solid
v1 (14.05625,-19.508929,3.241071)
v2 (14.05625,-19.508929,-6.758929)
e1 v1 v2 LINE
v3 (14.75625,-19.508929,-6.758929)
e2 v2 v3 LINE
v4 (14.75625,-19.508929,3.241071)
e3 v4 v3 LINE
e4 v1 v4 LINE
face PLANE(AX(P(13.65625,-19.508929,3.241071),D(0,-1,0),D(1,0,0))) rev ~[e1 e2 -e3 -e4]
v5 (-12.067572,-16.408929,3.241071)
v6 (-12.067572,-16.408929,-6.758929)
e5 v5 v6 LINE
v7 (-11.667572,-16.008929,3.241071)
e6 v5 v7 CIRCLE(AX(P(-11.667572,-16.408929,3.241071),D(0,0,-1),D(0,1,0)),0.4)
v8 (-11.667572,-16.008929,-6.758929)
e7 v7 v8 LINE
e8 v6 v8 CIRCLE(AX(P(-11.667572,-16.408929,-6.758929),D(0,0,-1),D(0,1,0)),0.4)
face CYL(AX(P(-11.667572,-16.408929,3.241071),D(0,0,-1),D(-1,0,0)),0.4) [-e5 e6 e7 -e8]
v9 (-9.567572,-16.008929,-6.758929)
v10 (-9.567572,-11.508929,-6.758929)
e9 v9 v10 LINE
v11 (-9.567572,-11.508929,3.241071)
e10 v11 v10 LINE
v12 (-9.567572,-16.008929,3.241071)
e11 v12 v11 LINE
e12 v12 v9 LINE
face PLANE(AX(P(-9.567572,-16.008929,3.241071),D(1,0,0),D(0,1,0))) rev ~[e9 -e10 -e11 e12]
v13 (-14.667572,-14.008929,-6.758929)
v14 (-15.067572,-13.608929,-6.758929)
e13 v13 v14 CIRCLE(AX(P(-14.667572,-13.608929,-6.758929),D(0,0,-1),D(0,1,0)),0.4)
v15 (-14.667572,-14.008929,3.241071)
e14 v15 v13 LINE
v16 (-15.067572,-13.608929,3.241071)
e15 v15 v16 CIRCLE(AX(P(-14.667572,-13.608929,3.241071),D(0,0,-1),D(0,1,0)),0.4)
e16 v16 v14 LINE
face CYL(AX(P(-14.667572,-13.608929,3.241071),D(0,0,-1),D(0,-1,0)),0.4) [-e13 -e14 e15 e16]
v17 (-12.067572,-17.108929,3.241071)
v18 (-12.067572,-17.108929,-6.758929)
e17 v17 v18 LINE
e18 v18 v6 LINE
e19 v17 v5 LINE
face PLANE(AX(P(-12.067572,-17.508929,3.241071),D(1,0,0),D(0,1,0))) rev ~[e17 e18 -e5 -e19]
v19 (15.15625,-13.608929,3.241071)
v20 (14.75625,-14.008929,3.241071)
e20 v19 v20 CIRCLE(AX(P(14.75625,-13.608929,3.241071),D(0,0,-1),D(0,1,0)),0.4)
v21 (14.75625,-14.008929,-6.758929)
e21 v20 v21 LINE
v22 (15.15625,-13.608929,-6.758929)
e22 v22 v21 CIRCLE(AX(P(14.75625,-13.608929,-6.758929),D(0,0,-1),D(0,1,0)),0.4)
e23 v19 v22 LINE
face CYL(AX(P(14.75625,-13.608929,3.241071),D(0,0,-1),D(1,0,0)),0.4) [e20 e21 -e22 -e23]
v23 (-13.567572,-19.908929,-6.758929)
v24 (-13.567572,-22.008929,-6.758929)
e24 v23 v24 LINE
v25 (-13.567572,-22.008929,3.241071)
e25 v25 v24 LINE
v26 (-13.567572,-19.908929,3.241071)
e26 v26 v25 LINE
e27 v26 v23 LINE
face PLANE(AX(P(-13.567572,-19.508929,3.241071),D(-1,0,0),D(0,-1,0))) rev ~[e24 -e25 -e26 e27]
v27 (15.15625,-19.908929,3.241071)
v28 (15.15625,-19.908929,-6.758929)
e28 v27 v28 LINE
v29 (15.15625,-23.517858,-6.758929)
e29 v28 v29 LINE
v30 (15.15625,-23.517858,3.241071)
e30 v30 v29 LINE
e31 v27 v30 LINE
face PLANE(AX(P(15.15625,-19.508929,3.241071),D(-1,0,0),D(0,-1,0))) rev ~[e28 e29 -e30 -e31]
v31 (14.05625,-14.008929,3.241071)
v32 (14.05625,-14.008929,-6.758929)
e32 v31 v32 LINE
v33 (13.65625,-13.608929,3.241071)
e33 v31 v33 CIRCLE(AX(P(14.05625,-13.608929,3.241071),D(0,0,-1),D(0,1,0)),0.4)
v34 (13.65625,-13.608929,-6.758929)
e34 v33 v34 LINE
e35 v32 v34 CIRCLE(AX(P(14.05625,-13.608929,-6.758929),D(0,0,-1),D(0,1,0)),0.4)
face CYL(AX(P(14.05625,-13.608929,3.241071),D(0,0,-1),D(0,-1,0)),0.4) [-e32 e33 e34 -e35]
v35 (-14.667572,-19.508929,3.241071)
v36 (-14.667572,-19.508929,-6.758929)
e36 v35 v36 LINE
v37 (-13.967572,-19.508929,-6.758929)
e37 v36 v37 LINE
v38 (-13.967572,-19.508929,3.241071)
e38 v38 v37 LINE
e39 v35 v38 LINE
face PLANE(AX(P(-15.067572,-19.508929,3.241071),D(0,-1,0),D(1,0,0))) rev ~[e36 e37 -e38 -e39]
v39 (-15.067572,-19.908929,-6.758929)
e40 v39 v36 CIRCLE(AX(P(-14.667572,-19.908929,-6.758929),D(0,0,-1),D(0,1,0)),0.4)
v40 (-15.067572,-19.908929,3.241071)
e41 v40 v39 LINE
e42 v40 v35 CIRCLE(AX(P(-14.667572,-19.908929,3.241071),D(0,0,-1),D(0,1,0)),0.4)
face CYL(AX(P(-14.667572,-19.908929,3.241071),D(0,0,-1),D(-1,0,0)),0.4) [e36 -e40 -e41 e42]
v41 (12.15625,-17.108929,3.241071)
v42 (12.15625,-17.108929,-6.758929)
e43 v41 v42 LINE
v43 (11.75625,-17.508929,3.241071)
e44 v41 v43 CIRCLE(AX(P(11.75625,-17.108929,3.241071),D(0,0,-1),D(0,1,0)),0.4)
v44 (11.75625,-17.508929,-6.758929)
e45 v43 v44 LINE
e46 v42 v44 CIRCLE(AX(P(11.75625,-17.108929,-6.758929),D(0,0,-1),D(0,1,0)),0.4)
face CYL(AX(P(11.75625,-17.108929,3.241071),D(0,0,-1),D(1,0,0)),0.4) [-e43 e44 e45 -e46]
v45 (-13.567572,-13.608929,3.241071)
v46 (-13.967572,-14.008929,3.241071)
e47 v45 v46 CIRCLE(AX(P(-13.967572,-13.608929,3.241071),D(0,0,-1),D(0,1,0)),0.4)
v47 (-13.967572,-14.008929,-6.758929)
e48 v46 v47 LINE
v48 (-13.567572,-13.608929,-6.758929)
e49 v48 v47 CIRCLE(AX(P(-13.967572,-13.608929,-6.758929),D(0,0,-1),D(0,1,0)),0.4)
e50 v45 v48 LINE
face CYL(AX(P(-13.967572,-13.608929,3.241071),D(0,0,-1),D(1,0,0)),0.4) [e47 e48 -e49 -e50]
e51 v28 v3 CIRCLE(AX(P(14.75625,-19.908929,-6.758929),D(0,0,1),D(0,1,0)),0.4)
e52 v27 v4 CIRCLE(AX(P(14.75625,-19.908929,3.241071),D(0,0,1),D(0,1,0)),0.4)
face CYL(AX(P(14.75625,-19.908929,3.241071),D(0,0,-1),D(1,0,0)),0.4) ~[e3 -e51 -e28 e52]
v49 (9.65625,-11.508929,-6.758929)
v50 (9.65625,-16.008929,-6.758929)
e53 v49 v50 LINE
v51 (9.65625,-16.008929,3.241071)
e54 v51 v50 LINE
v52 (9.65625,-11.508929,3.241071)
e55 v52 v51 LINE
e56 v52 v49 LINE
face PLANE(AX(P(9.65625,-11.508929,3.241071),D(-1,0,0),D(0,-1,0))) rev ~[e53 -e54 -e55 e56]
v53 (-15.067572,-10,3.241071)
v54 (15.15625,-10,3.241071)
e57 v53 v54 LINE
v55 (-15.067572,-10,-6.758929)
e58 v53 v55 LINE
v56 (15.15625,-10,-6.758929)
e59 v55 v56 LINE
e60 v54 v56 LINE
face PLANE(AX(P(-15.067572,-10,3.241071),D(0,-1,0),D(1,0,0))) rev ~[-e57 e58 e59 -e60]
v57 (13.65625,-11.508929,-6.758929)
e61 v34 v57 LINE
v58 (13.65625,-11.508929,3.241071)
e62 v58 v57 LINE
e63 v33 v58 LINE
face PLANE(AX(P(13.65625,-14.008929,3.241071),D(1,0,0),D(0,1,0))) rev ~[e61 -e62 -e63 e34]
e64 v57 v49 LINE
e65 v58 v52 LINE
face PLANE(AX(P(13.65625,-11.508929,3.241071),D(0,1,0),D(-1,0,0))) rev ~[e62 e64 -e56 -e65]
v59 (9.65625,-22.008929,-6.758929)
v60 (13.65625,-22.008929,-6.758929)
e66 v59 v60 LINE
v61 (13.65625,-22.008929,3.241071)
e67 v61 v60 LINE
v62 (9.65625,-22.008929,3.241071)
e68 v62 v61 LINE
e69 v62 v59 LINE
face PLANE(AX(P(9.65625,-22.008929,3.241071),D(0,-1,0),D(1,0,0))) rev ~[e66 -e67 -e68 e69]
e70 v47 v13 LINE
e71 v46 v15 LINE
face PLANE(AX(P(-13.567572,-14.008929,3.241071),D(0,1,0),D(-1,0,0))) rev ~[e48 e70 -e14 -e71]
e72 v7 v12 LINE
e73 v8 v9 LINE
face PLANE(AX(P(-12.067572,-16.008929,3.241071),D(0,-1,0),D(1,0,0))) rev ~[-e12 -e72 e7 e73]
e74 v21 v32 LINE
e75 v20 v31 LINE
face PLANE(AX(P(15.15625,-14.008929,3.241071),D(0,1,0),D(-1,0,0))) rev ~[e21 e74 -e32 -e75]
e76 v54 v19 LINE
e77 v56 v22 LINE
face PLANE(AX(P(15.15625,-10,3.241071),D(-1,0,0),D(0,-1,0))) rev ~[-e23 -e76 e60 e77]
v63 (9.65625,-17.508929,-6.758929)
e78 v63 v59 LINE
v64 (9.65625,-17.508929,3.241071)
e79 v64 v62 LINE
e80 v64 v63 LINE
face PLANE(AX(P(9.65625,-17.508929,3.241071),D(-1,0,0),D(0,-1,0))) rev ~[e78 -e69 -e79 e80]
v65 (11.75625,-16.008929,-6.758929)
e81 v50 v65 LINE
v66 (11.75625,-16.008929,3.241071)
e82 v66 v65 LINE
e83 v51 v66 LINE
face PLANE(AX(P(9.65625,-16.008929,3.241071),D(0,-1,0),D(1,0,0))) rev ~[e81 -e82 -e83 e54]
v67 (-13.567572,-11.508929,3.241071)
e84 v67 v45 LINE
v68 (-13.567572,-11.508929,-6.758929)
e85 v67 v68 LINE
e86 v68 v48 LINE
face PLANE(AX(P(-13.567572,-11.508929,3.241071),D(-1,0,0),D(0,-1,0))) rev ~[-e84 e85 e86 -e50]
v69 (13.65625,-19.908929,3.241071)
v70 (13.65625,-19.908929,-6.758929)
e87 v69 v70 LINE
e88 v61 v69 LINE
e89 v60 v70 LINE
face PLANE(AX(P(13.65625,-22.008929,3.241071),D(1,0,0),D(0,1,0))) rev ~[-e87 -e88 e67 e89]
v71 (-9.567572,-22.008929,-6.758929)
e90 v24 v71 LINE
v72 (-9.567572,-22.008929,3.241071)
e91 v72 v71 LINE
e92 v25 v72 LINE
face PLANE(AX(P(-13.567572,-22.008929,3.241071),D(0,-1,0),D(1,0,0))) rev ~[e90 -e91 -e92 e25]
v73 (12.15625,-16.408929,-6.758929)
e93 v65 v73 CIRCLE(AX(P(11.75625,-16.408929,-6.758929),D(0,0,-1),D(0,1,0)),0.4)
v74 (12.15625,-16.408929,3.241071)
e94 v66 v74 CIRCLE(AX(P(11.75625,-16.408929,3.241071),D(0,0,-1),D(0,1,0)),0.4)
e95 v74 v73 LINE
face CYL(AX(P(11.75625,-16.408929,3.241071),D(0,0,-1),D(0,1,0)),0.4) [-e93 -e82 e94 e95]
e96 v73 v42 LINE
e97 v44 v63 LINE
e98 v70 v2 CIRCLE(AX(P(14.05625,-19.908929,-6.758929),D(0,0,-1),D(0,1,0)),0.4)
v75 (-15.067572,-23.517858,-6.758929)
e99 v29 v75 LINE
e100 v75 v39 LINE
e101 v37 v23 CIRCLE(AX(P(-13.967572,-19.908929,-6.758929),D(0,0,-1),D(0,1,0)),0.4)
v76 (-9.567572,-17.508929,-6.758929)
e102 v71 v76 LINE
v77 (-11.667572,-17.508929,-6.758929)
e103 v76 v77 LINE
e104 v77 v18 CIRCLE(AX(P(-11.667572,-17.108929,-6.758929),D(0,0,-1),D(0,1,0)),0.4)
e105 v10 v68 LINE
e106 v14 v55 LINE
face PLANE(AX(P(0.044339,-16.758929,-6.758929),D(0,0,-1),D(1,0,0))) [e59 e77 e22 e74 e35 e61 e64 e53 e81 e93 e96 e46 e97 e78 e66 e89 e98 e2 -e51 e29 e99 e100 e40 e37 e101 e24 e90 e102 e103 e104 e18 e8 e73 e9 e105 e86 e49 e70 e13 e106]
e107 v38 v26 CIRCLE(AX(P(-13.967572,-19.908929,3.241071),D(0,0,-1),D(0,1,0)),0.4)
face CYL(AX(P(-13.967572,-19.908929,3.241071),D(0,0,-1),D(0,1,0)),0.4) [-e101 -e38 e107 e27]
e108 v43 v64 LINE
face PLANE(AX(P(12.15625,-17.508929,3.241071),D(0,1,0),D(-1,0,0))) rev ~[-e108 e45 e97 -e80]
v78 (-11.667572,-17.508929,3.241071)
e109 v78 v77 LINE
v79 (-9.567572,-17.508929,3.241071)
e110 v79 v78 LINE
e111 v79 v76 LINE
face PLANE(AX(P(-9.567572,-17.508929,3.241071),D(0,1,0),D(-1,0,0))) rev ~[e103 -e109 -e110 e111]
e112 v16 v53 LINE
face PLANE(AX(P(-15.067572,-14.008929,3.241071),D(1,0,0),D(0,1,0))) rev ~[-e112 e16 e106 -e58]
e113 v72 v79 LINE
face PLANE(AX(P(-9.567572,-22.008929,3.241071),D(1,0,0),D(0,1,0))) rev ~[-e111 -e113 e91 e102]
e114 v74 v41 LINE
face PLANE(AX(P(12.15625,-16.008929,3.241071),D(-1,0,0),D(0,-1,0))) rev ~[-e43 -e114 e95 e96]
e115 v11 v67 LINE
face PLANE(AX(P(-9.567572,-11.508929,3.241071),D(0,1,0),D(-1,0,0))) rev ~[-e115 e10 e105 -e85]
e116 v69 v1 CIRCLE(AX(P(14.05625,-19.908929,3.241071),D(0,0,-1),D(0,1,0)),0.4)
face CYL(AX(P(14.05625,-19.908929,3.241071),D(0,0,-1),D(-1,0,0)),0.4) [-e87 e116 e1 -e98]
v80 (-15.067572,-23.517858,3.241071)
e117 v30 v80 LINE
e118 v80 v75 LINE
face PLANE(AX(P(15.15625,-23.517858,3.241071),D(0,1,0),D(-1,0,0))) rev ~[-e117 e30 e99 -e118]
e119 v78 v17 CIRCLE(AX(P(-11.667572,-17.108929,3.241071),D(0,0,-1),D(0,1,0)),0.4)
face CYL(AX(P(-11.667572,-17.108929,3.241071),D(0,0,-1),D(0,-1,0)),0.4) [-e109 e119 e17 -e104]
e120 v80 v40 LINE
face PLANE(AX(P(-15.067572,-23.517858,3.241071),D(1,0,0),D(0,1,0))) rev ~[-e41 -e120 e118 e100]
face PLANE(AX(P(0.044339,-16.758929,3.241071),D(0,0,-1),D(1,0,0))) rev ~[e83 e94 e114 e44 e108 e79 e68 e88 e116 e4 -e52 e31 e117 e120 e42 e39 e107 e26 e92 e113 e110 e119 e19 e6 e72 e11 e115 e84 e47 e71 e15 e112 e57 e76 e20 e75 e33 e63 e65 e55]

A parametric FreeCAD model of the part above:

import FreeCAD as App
import Part
import Sketcher


def edges_at(feature, points):
    """Names of the edges that pass closest to the given points."""
    edges = feature.Shape.Edges
    near = lambda p: min(range(len(edges)), key=lambda i: edges[i].distToShape(Part.Vertex(*p))[0])
    return sorted({f"Edge{near(p) + 1}" for p in points})

doc = App.newDocument("Part")
body = doc.addObject("PartDesign::Body", "Body")

# Sketch on XZ plane
sketch1 = doc.addObject("Sketcher::SketchObject", "Sketch")
body.addObject(sketch1)
sketch1.AttachmentSupport = (doc.XZ_Plane, [""])
sketch1.MapMode = "FlatFace"
sketch1.addGeometry([
    Part.LineSegment(App.Vector(15.2, 2.8, 0), App.Vector(15.2, 6.8, 0)),  # 0
    Part.LineSegment(App.Vector(15.2, 6.8, 0), App.Vector(-15.1, 6.8, 0)),  # 1
    Part.LineSegment(App.Vector(-15.1, 6.8, 0), App.Vector(-15.1, 2.8, 0)),  # 2
    Part.LineSegment(App.Vector(-15.1, 2.8, 0), App.Vector(-13.6, 2.8, 0)),  # 3
    Part.LineSegment(App.Vector(-13.6, 2.8, 0), App.Vector(-13.6, 5.2, 0)),  # 4
    Part.LineSegment(App.Vector(-13.6, 5.2, 0), App.Vector(-9.6, 5.2, 0)),  # 5
    Part.LineSegment(App.Vector(-9.6, 5.2, 0), App.Vector(-9.6, 0.8, 0)),  # 6
    Part.LineSegment(App.Vector(-9.6, 0.8, 0), App.Vector(-12.1, 0.8, 0)),  # 7
    Part.LineSegment(App.Vector(-12.1, 0.8, 0), App.Vector(-12.1, -0.8, 0)),  # 8
    Part.LineSegment(App.Vector(-12.1, -0.8, 0), App.Vector(-9.6, -0.8, 0)),  # 9
    Part.LineSegment(App.Vector(-9.6, -0.8, 0), App.Vector(-9.6, -5.2, 0)),  # 10
    Part.LineSegment(App.Vector(-9.6, -5.2, 0), App.Vector(-13.6, -5.2, 0)),  # 11
    Part.LineSegment(App.Vector(-13.6, -5.2, 0), App.Vector(-13.6, -2.8, 0)),  # 12
    Part.LineSegment(App.Vector(-13.6, -2.8, 0), App.Vector(-15.1, -2.8, 0)),  # 13
    Part.LineSegment(App.Vector(-15.1, -2.8, 0), App.Vector(-15.1, -6.8, 0)),  # 14
    Part.LineSegment(App.Vector(-15.1, -6.8, 0), App.Vector(15.2, -6.8, 0)),  # 15
    Part.LineSegment(App.Vector(15.2, -6.8, 0), App.Vector(15.2, -2.8, 0)),  # 16
    Part.LineSegment(App.Vector(15.2, -2.8, 0), App.Vector(13.7, -2.8, 0)),  # 17
    Part.LineSegment(App.Vector(13.7, -2.8, 0), App.Vector(13.7, -5.2, 0)),  # 18
    Part.LineSegment(App.Vector(13.7, -5.2, 0), App.Vector(9.7, -5.2, 0)),  # 19
    Part.LineSegment(App.Vector(9.7, -5.2, 0), App.Vector(9.7, -0.8, 0)),  # 20
    Part.LineSegment(App.Vector(9.7, -0.8, 0), App.Vector(12.2, -0.8, 0)),  # 21
    Part.LineSegment(App.Vector(12.2, -0.8, 0), App.Vector(12.2, 0.8, 0)),  # 22
    Part.LineSegment(App.Vector(12.2, 0.8, 0), App.Vector(9.7, 0.8, 0)),  # 23
    Part.LineSegment(App.Vector(9.7, 0.8, 0), App.Vector(9.7, 5.2, 0)),  # 24
    Part.LineSegment(App.Vector(9.7, 5.2, 0), App.Vector(13.7, 5.2, 0)),  # 25
    Part.LineSegment(App.Vector(13.7, 5.2, 0), App.Vector(13.7, 2.8, 0)),  # 26
    Part.LineSegment(App.Vector(13.7, 2.8, 0), App.Vector(15.2, 2.8, 0)),  # 27
], False)
sketch1.addConstraint([
    Sketcher.Constraint("Coincident", 0, 2, 1, 1),
    Sketcher.Constraint("Coincident", 1, 2, 2, 1),
    Sketcher.Constraint("Coincident", 2, 2, 3, 1),
    Sketcher.Constraint("Coincident", 3, 2, 4, 1),
    Sketcher.Constraint("Coincident", 4, 2, 5, 1),
    Sketcher.Constraint("Coincident", 5, 2, 6, 1),
    Sketcher.Constraint("Coincident", 6, 2, 7, 1),
    Sketcher.Constraint("Coincident", 7, 2, 8, 1),
    Sketcher.Constraint("Coincident", 8, 2, 9, 1),
    Sketcher.Constraint("Coincident", 9, 2, 10, 1),
    Sketcher.Constraint("Coincident", 10, 2, 11, 1),
    Sketcher.Constraint("Coincident", 11, 2, 12, 1),
    Sketcher.Constraint("Coincident", 12, 2, 13, 1),
    Sketcher.Constraint("Coincident", 13, 2, 14, 1),
    Sketcher.Constraint("Coincident", 14, 2, 15, 1),
    Sketcher.Constraint("Coincident", 15, 2, 16, 1),
    Sketcher.Constraint("Coincident", 16, 2, 17, 1),
    Sketcher.Constraint("Coincident", 17, 2, 18, 1),
    Sketcher.Constraint("Coincident", 18, 2, 19, 1),
    Sketcher.Constraint("Coincident", 19, 2, 20, 1),
    Sketcher.Constraint("Coincident", 20, 2, 21, 1),
    Sketcher.Constraint("Coincident", 21, 2, 22, 1),
    Sketcher.Constraint("Coincident", 22, 2, 23, 1),
    Sketcher.Constraint("Coincident", 23, 2, 24, 1),
    Sketcher.Constraint("Coincident", 24, 2, 25, 1),
    Sketcher.Constraint("Coincident", 25, 2, 26, 1),
    Sketcher.Constraint("Coincident", 26, 2, 27, 1),
    Sketcher.Constraint("Coincident", 27, 2, 0, 1),
    Sketcher.Constraint("Vertical", 0),
    Sketcher.Constraint("Horizontal", 1),
    Sketcher.Constraint("Vertical", 2),
    Sketcher.Constraint("Horizontal", 3),
    Sketcher.Constraint("Vertical", 4),
    Sketcher.Constraint("Horizontal", 5),
    Sketcher.Constraint("Vertical", 6),
    Sketcher.Constraint("Horizontal", 7),
    Sketcher.Constraint("Vertical", 8),
    Sketcher.Constraint("Horizontal", 9),
    Sketcher.Constraint("Vertical", 10),
    Sketcher.Constraint("Horizontal", 11),
    Sketcher.Constraint("Vertical", 12),
    Sketcher.Constraint("Horizontal", 13),
    Sketcher.Constraint("Vertical", 14),
    Sketcher.Constraint("Horizontal", 15),
    Sketcher.Constraint("Vertical", 16),
    Sketcher.Constraint("Horizontal", 17),
    Sketcher.Constraint("Vertical", 18),
    Sketcher.Constraint("Horizontal", 19),
    Sketcher.Constraint("Vertical", 20),
    Sketcher.Constraint("Horizontal", 21),
    Sketcher.Constraint("Vertical", 22),
    Sketcher.Constraint("Horizontal", 23),
    Sketcher.Constraint("Vertical", 24),
    Sketcher.Constraint("Horizontal", 25),
    Sketcher.Constraint("Vertical", 26),
    Sketcher.Constraint("Horizontal", 27),
    Sketcher.Constraint("Symmetric", 6, 2, 9, 2, -1),
    Sketcher.Constraint("Symmetric", 4, 2, 11, 2, -1),
    Sketcher.Constraint("Symmetric", 2, 2, 13, 2, -1),
    Sketcher.Constraint("Symmetric", 0, 2, 15, 2, -1),
    Sketcher.Constraint("Symmetric", 20, 2, 23, 2, -1),
    Sketcher.Constraint("Symmetric", 18, 2, 25, 2, -1),
    Sketcher.Constraint("Horizontal", 13, 2, 16, 2),
    Sketcher.Constraint("Horizontal", 11, 2, 18, 2),
    Sketcher.Constraint("Horizontal", 9, 2, 20, 2),
    Sketcher.Constraint("Horizontal", 3, 2, 26, 2),
    Sketcher.Constraint("Equal", 13, 17),
    Sketcher.Constraint("Equal", 11, 19),
    Sketcher.Constraint("Equal", 9, 21),
    Sketcher.Constraint("Equal", 23, 4),
    Sketcher.Constraint("Equal", 27, 8),
    Sketcher.Constraint("DistanceX", 5, 1, 5, 2, 4.0),
    Sketcher.Constraint("DistanceX", 3, 1, 3, 2, 1.5),
    Sketcher.Constraint("DistanceX", 7, 2, 7, 1, 2.5),
    Sketcher.Constraint("DistanceY", 6, 2, 6, 1, 4.5),
    Sketcher.Constraint("DistanceX", 1, 2, 1, 1, 30.223822),
    Sketcher.Constraint("DistanceY", 0, 1, 0, 2, 4.008929),
    Sketcher.Constraint("DistanceX", -1, 1, 0, 2, 15.15625),
])
pad1 = doc.addObject("PartDesign::Pad", "Pad")
body.addObject(pad1)
pad1.Profile = sketch1
pad1.Length = 10
doc.recompute()

fillet = doc.addObject("PartDesign::Fillet", "Fillet")
body.addObject(fillet)
fillet.Base = (pad1, edges_at(pad1, [
    (15.156, -5, 2.75),
    (13.656, -5, 2.75),
    (12.156, -5, 0.75),
    (12.156, -5, -0.75),
    (15.156, -5, -2.75),
    (13.656, -5, -2.75),
    (-13.568, -5, -2.75),
    (-15.068, -5, -2.75),
    (-12.068, -5, 0.75),
    (-12.068, -5, -0.75),
    (-13.568, -5, 2.75),
    (-15.068, -5, 2.75),
]))
fillet.Radius = 0.4
body2 = doc.addObject("PartDesign::Body", "Body001")
doc.recompute()

body.Placement = App.Placement(App.Vector(0, -16.758929, 3.241071), App.Rotation(App.Vector(1, 0, 0), 90))
boolean = doc.addObject("PartDesign::Boolean", "Boolean")
body2.addObject(boolean)
boolean.Type = "Fuse"
boolean.addObjects([body])

doc.recompute()
